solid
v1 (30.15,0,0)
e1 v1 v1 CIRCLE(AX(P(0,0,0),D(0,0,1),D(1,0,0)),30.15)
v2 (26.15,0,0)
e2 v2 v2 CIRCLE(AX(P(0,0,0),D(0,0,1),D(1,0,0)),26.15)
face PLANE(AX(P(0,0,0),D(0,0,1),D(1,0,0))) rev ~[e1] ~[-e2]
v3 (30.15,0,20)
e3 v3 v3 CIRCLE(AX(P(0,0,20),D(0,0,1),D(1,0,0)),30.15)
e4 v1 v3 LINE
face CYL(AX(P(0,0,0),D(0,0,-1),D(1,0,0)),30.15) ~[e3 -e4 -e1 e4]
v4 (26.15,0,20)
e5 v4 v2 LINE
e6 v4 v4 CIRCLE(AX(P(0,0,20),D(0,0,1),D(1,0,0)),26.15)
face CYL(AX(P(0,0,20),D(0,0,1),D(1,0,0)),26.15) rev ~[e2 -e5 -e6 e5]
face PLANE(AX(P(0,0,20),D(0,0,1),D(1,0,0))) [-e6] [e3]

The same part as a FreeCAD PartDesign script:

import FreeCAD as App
import Part
import Sketcher

doc = App.newDocument("Part")
body = doc.addObject("PartDesign::Body", "Body")

sketch1 = body.newObject("Sketcher::SketchObject", "Sketch")
sketch1.AttachmentSupport = (doc.getObject("XY_Plane"), [""])
sketch1.MapMode = "FlatFace"
sketch1.addGeometry(Part.Circle(App.Vector(0, 0, 0), App.Vector(0, 0, 1), 30), False)
sketch1.addConstraint([
    Sketcher.Constraint("Coincident", 0, 3, -1, 1),
    Sketcher.Constraint("Diameter", 0, 60.3),
])
pad1 = body.newObject("PartDesign::Pad", "Pad")
pad1.Profile = sketch1
pad1.Length = 20

sketch2 = body.newObject("Sketcher::SketchObject", "Sketch001")
sketch2.AttachmentSupport = (doc.getObject("XY_Plane"), [""])
sketch2.MapMode = "FlatFace"
sketch2.AttachmentOffset = App.Placement(App.Vector(0, 0, 20), App.Rotation())
sketch2.addGeometry(Part.Circle(App.Vector(0, 0, 0), App.Vector(0, 0, 1), 26), False)
sketch2.addConstraint([
    Sketcher.Constraint("Coincident", 0, 3, -1, 1),
    Sketcher.Constraint("Diameter", 0, 52.3),
])
pocket1 = body.newObject("PartDesign::Pocket", "Pocket")
pocket1.Profile = sketch2
pocket1.Type = "ThroughAll"

doc.recompute()
